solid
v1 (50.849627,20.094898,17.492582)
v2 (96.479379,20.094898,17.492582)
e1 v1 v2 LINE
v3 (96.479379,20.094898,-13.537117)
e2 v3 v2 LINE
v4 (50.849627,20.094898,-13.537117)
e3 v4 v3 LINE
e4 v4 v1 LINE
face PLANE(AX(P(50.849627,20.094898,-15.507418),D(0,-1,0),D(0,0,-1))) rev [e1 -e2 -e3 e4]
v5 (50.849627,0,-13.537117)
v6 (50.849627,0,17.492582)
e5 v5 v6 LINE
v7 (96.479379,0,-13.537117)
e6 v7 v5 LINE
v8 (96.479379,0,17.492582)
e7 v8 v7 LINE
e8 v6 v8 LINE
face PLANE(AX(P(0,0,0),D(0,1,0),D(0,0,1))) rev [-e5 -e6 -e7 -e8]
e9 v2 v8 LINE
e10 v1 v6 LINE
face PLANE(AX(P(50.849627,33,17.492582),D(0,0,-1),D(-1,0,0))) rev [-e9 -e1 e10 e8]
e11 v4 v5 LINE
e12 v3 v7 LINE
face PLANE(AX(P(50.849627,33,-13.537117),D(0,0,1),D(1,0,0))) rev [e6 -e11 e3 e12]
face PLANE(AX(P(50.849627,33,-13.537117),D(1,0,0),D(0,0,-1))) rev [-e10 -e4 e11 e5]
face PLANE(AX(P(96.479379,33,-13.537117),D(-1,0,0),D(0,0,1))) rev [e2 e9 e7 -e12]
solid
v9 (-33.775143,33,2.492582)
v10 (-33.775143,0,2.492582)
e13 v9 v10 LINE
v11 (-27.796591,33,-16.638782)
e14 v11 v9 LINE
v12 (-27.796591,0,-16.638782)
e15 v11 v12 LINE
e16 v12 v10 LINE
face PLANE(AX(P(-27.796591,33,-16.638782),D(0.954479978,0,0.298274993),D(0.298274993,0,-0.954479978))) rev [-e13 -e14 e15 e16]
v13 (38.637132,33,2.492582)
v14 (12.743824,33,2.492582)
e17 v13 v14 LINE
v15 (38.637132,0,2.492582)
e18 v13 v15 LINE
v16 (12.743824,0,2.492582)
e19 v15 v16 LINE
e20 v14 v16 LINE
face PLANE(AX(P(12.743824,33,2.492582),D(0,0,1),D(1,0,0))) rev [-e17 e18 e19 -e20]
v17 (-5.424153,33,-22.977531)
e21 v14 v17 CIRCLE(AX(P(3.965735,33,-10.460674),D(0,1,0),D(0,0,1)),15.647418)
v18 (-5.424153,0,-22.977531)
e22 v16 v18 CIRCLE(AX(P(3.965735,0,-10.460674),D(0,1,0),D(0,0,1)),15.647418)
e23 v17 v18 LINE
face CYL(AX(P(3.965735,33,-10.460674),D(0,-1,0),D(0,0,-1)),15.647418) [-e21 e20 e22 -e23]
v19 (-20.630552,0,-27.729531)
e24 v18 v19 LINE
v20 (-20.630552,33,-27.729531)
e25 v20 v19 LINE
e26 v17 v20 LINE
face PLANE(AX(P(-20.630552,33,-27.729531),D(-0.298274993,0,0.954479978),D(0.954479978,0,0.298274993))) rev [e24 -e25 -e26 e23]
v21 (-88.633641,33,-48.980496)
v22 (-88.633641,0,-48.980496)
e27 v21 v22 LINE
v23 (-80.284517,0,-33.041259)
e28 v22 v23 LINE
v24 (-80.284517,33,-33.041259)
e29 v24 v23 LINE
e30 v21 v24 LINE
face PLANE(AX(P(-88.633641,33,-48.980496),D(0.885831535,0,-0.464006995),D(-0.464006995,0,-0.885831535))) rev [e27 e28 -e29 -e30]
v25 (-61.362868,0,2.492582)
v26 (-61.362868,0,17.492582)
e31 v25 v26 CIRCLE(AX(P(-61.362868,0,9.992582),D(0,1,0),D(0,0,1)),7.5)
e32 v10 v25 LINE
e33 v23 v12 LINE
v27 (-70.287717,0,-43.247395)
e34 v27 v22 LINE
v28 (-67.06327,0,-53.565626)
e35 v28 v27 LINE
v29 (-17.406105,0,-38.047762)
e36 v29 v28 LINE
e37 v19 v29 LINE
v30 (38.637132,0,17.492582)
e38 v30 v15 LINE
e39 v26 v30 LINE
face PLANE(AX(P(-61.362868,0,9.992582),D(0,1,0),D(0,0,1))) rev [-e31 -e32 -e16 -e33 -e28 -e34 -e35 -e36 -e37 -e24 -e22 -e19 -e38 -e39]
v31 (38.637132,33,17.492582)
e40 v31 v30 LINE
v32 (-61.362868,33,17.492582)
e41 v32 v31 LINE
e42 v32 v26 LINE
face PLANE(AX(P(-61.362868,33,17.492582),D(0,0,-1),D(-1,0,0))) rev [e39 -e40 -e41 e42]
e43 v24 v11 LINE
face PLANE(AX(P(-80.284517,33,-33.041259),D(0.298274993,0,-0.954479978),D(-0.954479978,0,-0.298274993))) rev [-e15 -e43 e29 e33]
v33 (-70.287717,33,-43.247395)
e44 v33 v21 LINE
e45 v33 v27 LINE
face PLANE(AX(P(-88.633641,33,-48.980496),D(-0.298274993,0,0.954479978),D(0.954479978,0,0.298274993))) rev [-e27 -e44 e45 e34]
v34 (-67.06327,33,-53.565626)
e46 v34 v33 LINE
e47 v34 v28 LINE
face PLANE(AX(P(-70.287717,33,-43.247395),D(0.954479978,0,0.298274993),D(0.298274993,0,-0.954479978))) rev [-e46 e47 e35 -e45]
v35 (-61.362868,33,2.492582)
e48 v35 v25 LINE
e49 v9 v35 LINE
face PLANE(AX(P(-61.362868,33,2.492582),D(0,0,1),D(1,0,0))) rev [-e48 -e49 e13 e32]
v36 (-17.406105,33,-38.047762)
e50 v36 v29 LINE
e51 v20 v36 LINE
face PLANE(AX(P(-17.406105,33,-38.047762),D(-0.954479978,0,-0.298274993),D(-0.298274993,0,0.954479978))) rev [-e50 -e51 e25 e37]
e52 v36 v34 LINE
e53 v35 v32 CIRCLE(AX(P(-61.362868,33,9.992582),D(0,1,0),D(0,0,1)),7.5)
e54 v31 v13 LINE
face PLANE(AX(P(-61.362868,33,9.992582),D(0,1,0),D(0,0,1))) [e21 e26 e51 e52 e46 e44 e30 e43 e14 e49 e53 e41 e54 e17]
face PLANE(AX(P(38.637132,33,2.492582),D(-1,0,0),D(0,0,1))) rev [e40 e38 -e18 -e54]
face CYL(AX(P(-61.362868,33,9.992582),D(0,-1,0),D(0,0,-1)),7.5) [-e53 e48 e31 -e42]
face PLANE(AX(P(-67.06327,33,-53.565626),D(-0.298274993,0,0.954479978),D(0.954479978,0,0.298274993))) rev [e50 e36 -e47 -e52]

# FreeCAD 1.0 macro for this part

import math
import FreeCAD as App
import Part
import Sketcher
from FreeCAD import Vector
Q = App.Units.Quantity

doc = App.newDocument("Part")
body = doc.addObject("PartDesign::Body", "Body")

# Sketch on XZ plane
sketch1 = body.newObject("Sketcher::SketchObject", "Sketch")
sketch1.AttachmentSupport = (doc.getObject("XZ_Plane"), [""])
sketch1.MapMode = "FlatFace"
sketch1.addGeometry(Part.LineSegment(Vector(-88.633641, -48.980496, 0), Vector(-80.284517, -33.041259, 0)), False)
sketch1.addGeometry(Part.LineSegment(Vector(-80.284517, -33.041259, 0), Vector(-27.796591, -16.638782, 0)), False)
sketch1.addGeometry(Part.LineSegment(Vector(-27.796591, -16.638782, 0), Vector(-33.775143, 2.492582, 0)), False)
sketch1.addGeometry(Part.LineSegment(Vector(-33.775143, 2.492582, 0), Vector(-61.362868, 2.492582, 0)), False)
sketch1.addGeometry(Part.ArcOfCircle(Part.Circle(Vector(-61.362868, 9.992582, 0), Vector(0, 0, 1), 7.5), math.radians(90), math.radians(270)), False)
sketch1.addGeometry(Part.LineSegment(Vector(-61.362868, 17.492582, 0), Vector(38.637132, 17.492582, 0)), False)
sketch1.addGeometry(Part.LineSegment(Vector(38.637132, 17.492582, 0), Vector(38.637132, 2.492582, 0)), False)
sketch1.addGeometry(Part.LineSegment(Vector(38.637132, 2.492582, 0), Vector(12.743824, 2.492582, 0)), False)
sketch1.addGeometry(Part.ArcOfCircle(Part.Circle(Vector(3.965735, -10.460674, 0), Vector(0, 0, 1), 15.647418), math.radians(-126.876473), math.radians(55.875513)), False)
sketch1.addGeometry(Part.LineSegment(Vector(-5.424153, -22.977531, 0), Vector(-20.630552, -27.729531, 0)), False)
sketch1.addGeometry(Part.LineSegment(Vector(-20.630552, -27.729531, 0), Vector(-17.406105, -38.047762, 0)), False)
sketch1.addGeometry(Part.LineSegment(Vector(-17.406105, -38.047762, 0), Vector(-67.06327, -53.565626, 0)), False)
sketch1.addGeometry(Part.LineSegment(Vector(-67.06327, -53.565626, 0), Vector(-70.287717, -43.247395, 0)), False)
sketch1.addGeometry(Part.LineSegment(Vector(-70.287717, -43.247395, 0), Vector(-88.633641, -48.980496, 0)), False)
sketch1.addConstraint(Sketcher.Constraint("Coincident", 0, 2, 1, 1))
sketch1.addConstraint(Sketcher.Constraint("Coincident", 1, 2, 2, 1))
sketch1.addConstraint(Sketcher.Constraint("Coincident", 2, 2, 3, 1))
sketch1.addConstraint(Sketcher.Constraint("Coincident", 3, 2, 4, 2))
sketch1.addConstraint(Sketcher.Constraint("Coincident", 4, 1, 5, 1))
sketch1.addConstraint(Sketcher.Constraint("Coincident", 5, 2, 6, 1))
sketch1.addConstraint(Sketcher.Constraint("Coincident", 6, 2, 7, 1))
sketch1.addConstraint(Sketcher.Constraint("Coincident", 7, 2, 8, 2))
sketch1.addConstraint(Sketcher.Constraint("Coincident", 8, 1, 9, 1))
sketch1.addConstraint(Sketcher.Constraint("Coincident", 9, 2, 10, 1))
sketch1.addConstraint(Sketcher.Constraint("Coincident", 10, 2, 11, 1))
sketch1.addConstraint(Sketcher.Constraint("Coincident", 11, 2, 12, 1))
sketch1.addConstraint(Sketcher.Constraint("Coincident", 12, 2, 13, 1))
sketch1.addConstraint(Sketcher.Constraint("Coincident", 13, 2, 0, 1))
sketch1.addConstraint(Sketcher.Constraint("Horizontal", 3))
sketch1.addConstraint(Sketcher.Constraint("Horizontal", 5))
sketch1.addConstraint(Sketcher.Constraint("Vertical", 6))
sketch1.addConstraint(Sketcher.Constraint("Horizontal", 7))
sketch1.addConstraint(Sketcher.Constraint("Radius", 4, Q("7.5 mm")))
sketch1.addConstraint(Sketcher.Constraint("DistanceX", 5, 1, 5, 2, Q("100 mm")))
sketch1.addConstraint(Sketcher.Constraint("DistanceY", 6, 2, 6, 1, Q("15 mm")))
sketch1.addConstraint(Sketcher.Constraint("DistanceX", 4, 3, 5, 2, Q("100 mm")))
sketch1.addConstraint(Sketcher.Constraint("DistanceX", 3, 2, 6, 2, Q("100 mm")))
sketch1.addConstraint(Sketcher.Constraint("Radius", 8, Q("15.647418 mm")))
sketch1.addConstraint(Sketcher.Constraint("DistanceY", 9, 2, 8, 1, Q("4.752 mm")))
sketch1.addConstraint(Sketcher.Constraint("DistanceX", 7, 2, 7, 1, Q("25.893308 mm")))
sketch1.addConstraint(Sketcher.Constraint("DistanceX", 9, 2, 8, 1, Q("15.2064 mm")))
sketch1.addConstraint(Sketcher.Constraint("DistanceX", 11, 2, 3, 2, Q("5.700402 mm")))
sketch1.addConstraint(Sketcher.Constraint("DistanceX", 0, 2, 12, 2, Q("9.9968 mm")))
sketch1.addConstraint(Sketcher.Constraint("DistanceY", 13, 2, 12, 2, Q("5.733101 mm")))
sketch1.addConstraint(Sketcher.Constraint("Distance", 0, Q("17.99353 mm")))
sketch1.addConstraint(Sketcher.Constraint("Distance", 11, Q("52.02536 mm")))
sketch1.addConstraint(Sketcher.Constraint("DistanceX", 3, 2, 3, 1, Q("27.587725 mm")))
sketch1.addConstraint(Sketcher.Constraint("DistanceY", 0, 2, -1, 1, Q("33.041259 mm")))
sketch1.addConstraint(Sketcher.Constraint("DistanceX", 1, 2, -1, 1, Q("27.796591 mm")))
sketch1.addConstraint(Sketcher.Constraint("DistanceY", 8, 1, -1, 1, Q("22.977531 mm")))
sketch1.addConstraint(Sketcher.Constraint("DistanceX", 11, 2, -1, 1, Q("67.06327 mm")))
sketch1.addConstraint(Sketcher.Constraint("DistanceX", 13, 2, -1, 1, Q("88.633641 mm")))
sketch1.addConstraint(Sketcher.Constraint("DistanceX", 0, 2, 4, 3, Q("18.921649 mm")))
sketch1.addConstraint(Sketcher.Constraint("DistanceY", 0, 2, 4, 3, Q("43.033841 mm")))
sketch1.addConstraint(Sketcher.Constraint("DistanceX", 0, 2, 8, 3, Q("84.250251 mm")))
sketch1.addConstraint(Sketcher.Constraint("DistanceY", 1, 2, 8, 3, Q("6.178109 mm")))
sketch1.addConstraint(Sketcher.Constraint("DistanceY", 10, 2, 9, 2, Q("10.318232 mm")))
sketch1.addConstraint(Sketcher.Constraint("DistanceX", 10, 2, 8, 3, Q("21.37184 mm")))
pad1 = body.newObject("PartDesign::Pad", "Pad")
pad1.Profile = sketch1
pad1.Length = 33
pad1.Reversed = True
body2 = doc.addObject("PartDesign::Body", "Body001")

# Sketch on XZ plane
sketch2 = body2.newObject("Sketcher::SketchObject", "Sketch001")
sketch2.AttachmentSupport = (doc.getObject("XZ_Plane001"), [""])
sketch2.MapMode = "FlatFace"
sketch2.addGeometry(Part.LineSegment(Vector(50.849627, -13.537117, 0), Vector(50.849627, 17.492582, 0)), False)
sketch2.addGeometry(Part.LineSegment(Vector(50.849627, 17.492582, 0), Vector(96.479379, 17.492582, 0)), False)
sketch2.addGeometry(Part.LineSegment(Vector(96.479379, 17.492582, 0), Vector(96.479379, -13.537117, 0)), False)
sketch2.addGeometry(Part.LineSegment(Vector(96.479379, -13.537117, 0), Vector(50.849627, -13.537117, 0)), False)
sketch2.addConstraint(Sketcher.Constraint("Coincident", 0, 2, 1, 1))
sketch2.addConstraint(Sketcher.Constraint("Coincident", 1, 2, 2, 1))
sketch2.addConstraint(Sketcher.Constraint("Coincident", 2, 2, 3, 1))
sketch2.addConstraint(Sketcher.Constraint("Coincident", 3, 2, 0, 1))
sketch2.addConstraint(Sketcher.Constraint("Vertical", 0))
sketch2.addConstraint(Sketcher.Constraint("Horizontal", 1))
sketch2.addConstraint(Sketcher.Constraint("Vertical", 2))
sketch2.addConstraint(Sketcher.Constraint("Horizontal", 3))
sketch2.addConstraint(Sketcher.Constraint("DistanceY", 0, 1, 0, 2, Q("31.029699 mm")))
sketch2.addConstraint(Sketcher.Constraint("DistanceX", 1, 1, 1, 2, Q("45.629751 mm")))
sketch2.addConstraint(Sketcher.Constraint("DistanceX", -1, 1, 1, 2, Q("96.479379 mm")))
sketch2.addConstraint(Sketcher.Constraint("DistanceY", -1, 1, 0, 2, Q("17.492582 mm")))
pad2 = body2.newObject("PartDesign::Pad", "Pad001")
pad2.Profile = sketch2
pad2.Length = 33
pad2.Reversed = True

# Sketch on XY plane
sketch3 = body2.newObject("Sketcher::SketchObject", "Sketch002")
sketch3.AttachmentSupport = (doc.getObject("XY_Plane001"), [""])
sketch3.MapMode = "FlatFace"
sketch3.AttachmentOffset = App.Placement(Vector(0, 0, 17.492582), App.Rotation())
sketch3.addGeometry(Part.LineSegment(Vector(50.849627, 33, 0), Vector(50.849627, 20.094898, 0)), False)
sketch3.addGeometry(Part.LineSegment(Vector(50.849627, 20.094898, 0), Vector(96.479379, 20.094898, 0)), False)
sketch3.addGeometry(Part.LineSegment(Vector(96.479379, 20.094898, 0), Vector(96.479379, 33, 0)), False)
sketch3.addGeometry(Part.LineSegment(Vector(96.479379, 33, 0), Vector(50.849627, 33, 0)), False)
sketch3.addConstraint(Sketcher.Constraint("Coincident", 0, 2, 1, 1))
sketch3.addConstraint(Sketcher.Constraint("Coincident", 1, 2, 2, 1))
sketch3.addConstraint(Sketcher.Constraint("Coincident", 2, 2, 3, 1))
sketch3.addConstraint(Sketcher.Constraint("Coincident", 3, 2, 0, 1))
sketch3.addConstraint(Sketcher.Constraint("Vertical", 0))
sketch3.addConstraint(Sketcher.Constraint("Horizontal", 1))
sketch3.addConstraint(Sketcher.Constraint("Vertical", 2))
sketch3.addConstraint(Sketcher.Constraint("Horizontal", 3))
sketch3.addConstraint(Sketcher.Constraint("DistanceY", -1, 1, 2, 2, Q("33 mm")))
sketch3.addConstraint(Sketcher.Constraint("DistanceY", 0, 2, 0, 1, Q("12.905102 mm")))
sketch3.addConstraint(Sketcher.Constraint("DistanceX", 1, 1, 1, 2, Q("45.629751 mm")))
sketch3.addConstraint(Sketcher.Constraint("DistanceX", -1, 1, 1, 2, Q("96.479379 mm")))
pocket1 = body2.newObject("PartDesign::Pocket", "Pocket")
pocket1.Profile = sketch3
pocket1.Length = 33

doc.recompute()
